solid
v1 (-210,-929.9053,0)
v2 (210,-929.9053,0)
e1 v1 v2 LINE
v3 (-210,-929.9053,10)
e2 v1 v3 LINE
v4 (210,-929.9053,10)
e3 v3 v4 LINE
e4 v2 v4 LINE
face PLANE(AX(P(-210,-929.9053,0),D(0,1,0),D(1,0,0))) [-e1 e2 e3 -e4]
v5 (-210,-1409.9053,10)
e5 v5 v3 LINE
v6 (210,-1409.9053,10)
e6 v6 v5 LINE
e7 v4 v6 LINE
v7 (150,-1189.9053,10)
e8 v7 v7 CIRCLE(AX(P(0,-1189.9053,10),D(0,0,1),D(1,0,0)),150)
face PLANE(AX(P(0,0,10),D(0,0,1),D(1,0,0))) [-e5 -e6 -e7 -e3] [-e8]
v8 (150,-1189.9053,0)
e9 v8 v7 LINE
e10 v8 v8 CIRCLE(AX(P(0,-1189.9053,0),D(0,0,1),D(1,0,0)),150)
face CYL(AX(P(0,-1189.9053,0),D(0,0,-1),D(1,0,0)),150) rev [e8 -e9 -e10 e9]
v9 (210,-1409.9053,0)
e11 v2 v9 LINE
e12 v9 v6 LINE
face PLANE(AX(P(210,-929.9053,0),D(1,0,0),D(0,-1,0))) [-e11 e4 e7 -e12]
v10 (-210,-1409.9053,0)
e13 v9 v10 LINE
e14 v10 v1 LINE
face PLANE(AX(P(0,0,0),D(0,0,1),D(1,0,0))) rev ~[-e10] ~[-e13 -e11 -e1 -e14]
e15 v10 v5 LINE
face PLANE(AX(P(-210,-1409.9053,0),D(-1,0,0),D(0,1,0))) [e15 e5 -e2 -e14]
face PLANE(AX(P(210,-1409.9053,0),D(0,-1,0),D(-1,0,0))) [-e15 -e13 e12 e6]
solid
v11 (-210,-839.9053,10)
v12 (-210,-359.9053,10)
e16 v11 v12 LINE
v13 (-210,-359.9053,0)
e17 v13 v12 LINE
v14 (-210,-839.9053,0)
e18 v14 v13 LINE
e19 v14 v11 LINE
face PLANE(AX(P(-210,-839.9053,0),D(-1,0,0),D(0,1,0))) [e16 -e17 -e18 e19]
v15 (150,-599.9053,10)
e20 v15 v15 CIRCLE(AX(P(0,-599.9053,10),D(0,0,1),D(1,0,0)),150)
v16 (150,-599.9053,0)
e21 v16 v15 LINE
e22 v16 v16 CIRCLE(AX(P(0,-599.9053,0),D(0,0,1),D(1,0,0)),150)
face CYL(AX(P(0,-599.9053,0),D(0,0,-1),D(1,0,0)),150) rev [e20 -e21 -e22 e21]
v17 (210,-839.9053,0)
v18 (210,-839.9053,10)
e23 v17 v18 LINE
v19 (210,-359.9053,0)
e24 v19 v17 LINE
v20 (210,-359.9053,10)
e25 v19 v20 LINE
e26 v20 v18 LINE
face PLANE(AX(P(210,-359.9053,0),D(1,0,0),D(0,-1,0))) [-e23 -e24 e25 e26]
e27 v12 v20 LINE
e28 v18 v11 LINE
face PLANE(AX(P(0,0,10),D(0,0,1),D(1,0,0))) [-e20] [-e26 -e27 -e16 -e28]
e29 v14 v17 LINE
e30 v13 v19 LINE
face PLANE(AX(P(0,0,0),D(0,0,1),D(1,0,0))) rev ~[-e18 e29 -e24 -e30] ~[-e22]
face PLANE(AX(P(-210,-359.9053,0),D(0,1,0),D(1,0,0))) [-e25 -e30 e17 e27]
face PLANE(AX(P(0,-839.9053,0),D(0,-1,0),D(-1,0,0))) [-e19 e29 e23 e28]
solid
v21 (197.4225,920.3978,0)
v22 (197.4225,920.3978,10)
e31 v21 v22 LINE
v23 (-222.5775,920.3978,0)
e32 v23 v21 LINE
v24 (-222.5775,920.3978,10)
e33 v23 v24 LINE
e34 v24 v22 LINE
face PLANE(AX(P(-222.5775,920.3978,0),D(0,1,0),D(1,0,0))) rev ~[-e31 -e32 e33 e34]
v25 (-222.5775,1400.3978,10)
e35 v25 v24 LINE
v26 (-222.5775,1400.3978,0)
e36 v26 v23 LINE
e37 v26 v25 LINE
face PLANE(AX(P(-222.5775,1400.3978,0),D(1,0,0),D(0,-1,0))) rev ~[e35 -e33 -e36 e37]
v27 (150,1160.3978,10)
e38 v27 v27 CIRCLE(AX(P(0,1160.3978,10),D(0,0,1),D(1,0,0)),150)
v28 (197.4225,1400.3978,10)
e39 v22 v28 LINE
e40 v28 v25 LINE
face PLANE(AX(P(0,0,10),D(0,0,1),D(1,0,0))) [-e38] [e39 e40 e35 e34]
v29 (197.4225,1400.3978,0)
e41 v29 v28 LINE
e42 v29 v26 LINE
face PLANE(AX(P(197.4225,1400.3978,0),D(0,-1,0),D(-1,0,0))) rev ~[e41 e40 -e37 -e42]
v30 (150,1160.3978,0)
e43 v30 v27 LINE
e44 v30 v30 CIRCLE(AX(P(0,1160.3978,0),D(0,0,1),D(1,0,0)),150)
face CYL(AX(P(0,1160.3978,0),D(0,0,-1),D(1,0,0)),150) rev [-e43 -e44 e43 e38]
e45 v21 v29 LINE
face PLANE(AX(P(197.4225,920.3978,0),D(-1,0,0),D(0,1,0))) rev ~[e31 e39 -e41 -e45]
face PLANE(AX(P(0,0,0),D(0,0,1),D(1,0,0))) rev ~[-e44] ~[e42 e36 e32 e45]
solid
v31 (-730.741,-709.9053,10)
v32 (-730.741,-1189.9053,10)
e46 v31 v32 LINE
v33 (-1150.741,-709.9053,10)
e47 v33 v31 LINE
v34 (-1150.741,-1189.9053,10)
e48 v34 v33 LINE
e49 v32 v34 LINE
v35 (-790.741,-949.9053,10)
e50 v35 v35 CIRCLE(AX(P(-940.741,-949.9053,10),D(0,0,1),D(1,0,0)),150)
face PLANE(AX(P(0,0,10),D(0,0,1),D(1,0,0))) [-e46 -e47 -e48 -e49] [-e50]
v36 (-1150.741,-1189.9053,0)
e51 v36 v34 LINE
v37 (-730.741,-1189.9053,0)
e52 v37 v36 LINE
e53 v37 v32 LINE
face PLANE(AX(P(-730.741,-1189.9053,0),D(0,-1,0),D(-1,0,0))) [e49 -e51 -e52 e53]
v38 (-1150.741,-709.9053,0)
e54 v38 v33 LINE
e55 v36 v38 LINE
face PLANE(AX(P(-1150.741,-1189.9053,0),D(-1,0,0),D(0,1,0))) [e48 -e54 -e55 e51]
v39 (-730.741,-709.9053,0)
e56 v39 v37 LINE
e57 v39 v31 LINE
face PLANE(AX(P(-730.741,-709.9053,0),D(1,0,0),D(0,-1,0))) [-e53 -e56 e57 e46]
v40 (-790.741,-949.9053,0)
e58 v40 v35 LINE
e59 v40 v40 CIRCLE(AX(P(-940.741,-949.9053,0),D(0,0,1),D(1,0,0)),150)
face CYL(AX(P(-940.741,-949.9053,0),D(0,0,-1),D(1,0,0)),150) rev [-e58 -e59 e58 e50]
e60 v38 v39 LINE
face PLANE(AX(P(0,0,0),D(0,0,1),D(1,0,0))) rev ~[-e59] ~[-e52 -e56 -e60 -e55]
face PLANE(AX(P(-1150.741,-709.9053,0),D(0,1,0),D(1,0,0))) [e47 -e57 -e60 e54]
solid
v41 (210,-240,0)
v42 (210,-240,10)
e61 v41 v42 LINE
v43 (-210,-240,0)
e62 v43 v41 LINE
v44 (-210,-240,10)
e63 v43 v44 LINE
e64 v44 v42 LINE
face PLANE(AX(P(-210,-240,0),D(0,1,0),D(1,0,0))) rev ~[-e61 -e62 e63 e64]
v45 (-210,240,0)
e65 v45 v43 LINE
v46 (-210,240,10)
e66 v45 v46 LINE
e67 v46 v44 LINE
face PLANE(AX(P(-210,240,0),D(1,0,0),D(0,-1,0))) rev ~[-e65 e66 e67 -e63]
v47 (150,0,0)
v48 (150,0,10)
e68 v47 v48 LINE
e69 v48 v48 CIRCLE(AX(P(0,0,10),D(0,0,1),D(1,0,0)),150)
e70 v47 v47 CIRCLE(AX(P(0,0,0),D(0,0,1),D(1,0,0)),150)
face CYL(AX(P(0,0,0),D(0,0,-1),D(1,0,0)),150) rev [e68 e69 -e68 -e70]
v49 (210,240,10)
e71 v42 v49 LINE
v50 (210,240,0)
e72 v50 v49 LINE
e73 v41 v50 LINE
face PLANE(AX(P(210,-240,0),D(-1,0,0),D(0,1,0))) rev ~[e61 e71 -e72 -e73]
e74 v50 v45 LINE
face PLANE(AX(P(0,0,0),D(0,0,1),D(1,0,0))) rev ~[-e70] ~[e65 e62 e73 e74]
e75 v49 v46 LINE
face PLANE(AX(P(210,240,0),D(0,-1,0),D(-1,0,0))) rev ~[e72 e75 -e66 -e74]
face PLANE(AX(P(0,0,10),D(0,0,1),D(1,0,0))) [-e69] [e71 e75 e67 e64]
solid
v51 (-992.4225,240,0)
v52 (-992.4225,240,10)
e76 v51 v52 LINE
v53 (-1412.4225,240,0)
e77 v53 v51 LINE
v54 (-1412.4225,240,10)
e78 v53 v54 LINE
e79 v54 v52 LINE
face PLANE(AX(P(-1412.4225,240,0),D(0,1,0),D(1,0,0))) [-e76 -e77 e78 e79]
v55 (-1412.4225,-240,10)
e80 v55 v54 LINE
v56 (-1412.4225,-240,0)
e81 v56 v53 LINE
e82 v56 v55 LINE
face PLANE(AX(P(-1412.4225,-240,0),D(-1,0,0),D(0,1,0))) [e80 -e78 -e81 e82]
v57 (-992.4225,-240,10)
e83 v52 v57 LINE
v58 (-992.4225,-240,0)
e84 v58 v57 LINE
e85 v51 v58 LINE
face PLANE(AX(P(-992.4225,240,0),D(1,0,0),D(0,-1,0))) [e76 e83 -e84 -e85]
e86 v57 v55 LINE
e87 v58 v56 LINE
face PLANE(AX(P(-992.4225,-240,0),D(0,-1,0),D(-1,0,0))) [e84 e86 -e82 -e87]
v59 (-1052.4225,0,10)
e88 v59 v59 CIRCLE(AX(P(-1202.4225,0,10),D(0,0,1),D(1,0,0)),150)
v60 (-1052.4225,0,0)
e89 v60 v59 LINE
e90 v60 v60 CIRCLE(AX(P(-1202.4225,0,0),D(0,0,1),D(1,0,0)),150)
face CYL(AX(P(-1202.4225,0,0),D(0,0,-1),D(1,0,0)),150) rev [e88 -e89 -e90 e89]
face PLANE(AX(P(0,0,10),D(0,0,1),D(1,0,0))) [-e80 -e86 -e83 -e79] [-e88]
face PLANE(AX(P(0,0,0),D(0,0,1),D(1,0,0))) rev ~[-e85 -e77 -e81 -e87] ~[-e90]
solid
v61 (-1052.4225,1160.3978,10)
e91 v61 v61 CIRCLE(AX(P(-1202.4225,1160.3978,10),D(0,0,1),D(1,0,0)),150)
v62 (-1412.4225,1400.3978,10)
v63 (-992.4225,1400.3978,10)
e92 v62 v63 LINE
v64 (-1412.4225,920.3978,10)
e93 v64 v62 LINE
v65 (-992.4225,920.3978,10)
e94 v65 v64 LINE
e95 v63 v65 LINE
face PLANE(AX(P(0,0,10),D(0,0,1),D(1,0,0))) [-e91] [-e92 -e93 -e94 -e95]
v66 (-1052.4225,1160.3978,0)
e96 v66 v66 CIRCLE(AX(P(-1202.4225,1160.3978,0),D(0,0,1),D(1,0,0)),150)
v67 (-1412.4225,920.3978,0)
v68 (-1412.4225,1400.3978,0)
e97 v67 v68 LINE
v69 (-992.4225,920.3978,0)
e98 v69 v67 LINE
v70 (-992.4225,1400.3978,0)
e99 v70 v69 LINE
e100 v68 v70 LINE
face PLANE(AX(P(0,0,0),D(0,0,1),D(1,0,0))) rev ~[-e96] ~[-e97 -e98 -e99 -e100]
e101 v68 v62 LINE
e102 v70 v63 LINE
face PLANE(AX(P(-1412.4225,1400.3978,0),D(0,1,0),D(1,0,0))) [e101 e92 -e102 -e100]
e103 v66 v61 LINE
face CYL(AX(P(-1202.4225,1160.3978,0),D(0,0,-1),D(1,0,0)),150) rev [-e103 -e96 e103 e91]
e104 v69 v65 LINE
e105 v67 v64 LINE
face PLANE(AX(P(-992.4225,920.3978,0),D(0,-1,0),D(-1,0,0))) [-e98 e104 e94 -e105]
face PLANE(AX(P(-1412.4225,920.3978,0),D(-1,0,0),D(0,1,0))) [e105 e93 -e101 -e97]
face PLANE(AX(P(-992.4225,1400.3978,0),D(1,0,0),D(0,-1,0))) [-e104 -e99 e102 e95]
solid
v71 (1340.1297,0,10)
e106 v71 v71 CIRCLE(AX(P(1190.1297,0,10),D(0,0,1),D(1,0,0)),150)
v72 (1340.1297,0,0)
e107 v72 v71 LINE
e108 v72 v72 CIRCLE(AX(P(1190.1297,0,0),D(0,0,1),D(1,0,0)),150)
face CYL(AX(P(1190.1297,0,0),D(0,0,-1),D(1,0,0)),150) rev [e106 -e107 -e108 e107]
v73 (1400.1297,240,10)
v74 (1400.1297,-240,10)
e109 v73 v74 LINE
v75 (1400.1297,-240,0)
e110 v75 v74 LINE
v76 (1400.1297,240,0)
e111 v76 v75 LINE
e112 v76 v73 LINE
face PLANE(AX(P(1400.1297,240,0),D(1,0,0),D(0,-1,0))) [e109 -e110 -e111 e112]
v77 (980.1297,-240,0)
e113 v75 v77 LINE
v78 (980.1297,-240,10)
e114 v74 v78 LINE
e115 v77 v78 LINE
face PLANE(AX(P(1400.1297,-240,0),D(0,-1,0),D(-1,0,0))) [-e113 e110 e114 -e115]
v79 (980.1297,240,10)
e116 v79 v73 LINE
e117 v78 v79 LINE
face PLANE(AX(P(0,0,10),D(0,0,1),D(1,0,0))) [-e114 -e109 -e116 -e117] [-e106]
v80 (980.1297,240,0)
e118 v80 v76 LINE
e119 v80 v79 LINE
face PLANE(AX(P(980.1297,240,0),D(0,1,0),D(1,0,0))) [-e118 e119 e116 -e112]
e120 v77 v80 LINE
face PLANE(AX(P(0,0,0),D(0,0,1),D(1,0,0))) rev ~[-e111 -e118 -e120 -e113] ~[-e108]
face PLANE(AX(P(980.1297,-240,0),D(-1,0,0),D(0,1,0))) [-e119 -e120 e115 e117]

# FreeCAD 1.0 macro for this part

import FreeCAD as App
import Part
import Sketcher
Q = App.Units.Quantity

doc = App.newDocument("Part")
params = doc.addObject("Spreadsheet::Sheet", "Params")
for row, (alias, value) in enumerate([
    ("sketch1_diameter", "300 mm"),
    ("sketch1_width", "420 mm"),
    ("sketch1_height", "480 mm"),
    ("pad1_length", "10 mm"),
], start=1):
    params.set(f"A{row}", alias)
    params.set(f"B{row}", "=" + value)
    params.setAlias(f"B{row}", alias)

body = doc.addObject("PartDesign::Body", "Body")
body.AllowCompound = True

# Sketch on XY plane
sketch1 = doc.addObject("Sketcher::SketchObject", "Sketch")
body.addObject(sketch1)
sketch1.AttachmentSupport = (doc.XY_Plane, [""])
sketch1.MapMode = "FlatFace"
sketch1.addGeometry(Part.LineSegment(App.Vector(-992, 1400, 0), App.Vector(-1412, 1400, 0)), False)
sketch1.addGeometry(Part.LineSegment(App.Vector(-1412, 1400, 0), App.Vector(-1412, 920, 0)), False)
sketch1.addGeometry(Part.LineSegment(App.Vector(-1412, 920, 0), App.Vector(-992, 920, 0)), False)
sketch1.addGeometry(Part.LineSegment(App.Vector(-992, 920, 0), App.Vector(-992, 1400, 0)), False)
sketch1.addGeometry(Part.Circle(App.Vector(-1202, 1160, 0), App.Vector(0, 0, 1), 150), False)
sketch1.addGeometry(Part.LineSegment(App.Vector(197, 920, 0), App.Vector(197, 1400, 0)), False)
sketch1.addGeometry(Part.LineSegment(App.Vector(197, 1400, 0), App.Vector(-223, 1400, 0)), False)
sketch1.addGeometry(Part.LineSegment(App.Vector(-223, 1400, 0), App.Vector(-223, 920, 0)), False)
sketch1.addGeometry(Part.LineSegment(App.Vector(-223, 920, 0), App.Vector(197, 920, 0)), False)
sketch1.addGeometry(Part.Circle(App.Vector(0, 1160, 0), App.Vector(0, 0, 1), 150), False)
sketch1.addGeometry(Part.LineSegment(App.Vector(210, -240, 0), App.Vector(210, 240, 0)), False)
sketch1.addGeometry(Part.LineSegment(App.Vector(210, 240, 0), App.Vector(-210, 240, 0)), False)
sketch1.addGeometry(Part.LineSegment(App.Vector(-210, 240, 0), App.Vector(-210, -240, 0)), False)
sketch1.addGeometry(Part.LineSegment(App.Vector(-210, -240, 0), App.Vector(210, -240, 0)), False)
sketch1.addGeometry(Part.Circle(App.Vector(0, 0, 0), App.Vector(0, 0, 1), 150), False)
sketch1.addGeometry(Part.LineSegment(App.Vector(-992, 240, 0), App.Vector(-1412, 240, 0)), False)
sketch1.addGeometry(Part.LineSegment(App.Vector(-1412, 240, 0), App.Vector(-1412, -240, 0)), False)
sketch1.addGeometry(Part.LineSegment(App.Vector(-1412, -240, 0), App.Vector(-992, -240, 0)), False)
sketch1.addGeometry(Part.LineSegment(App.Vector(-992, -240, 0), App.Vector(-992, 240, 0)), False)
sketch1.addGeometry(Part.Circle(App.Vector(-1202, 0, 0), App.Vector(0, 0, 1), 150), False)
sketch1.addGeometry(Part.LineSegment(App.Vector(980, -240, 0), App.Vector(1400, -240, 0)), False)
sketch1.addGeometry(Part.LineSegment(App.Vector(1400, -240, 0), App.Vector(1400, 240, 0)), False)
sketch1.addGeometry(Part.LineSegment(App.Vector(1400, 240, 0), App.Vector(980, 240, 0)), False)
sketch1.addGeometry(Part.LineSegment(App.Vector(980, 240, 0), App.Vector(980, -240, 0)), False)
sketch1.addGeometry(Part.Circle(App.Vector(1190, 0, 0), App.Vector(0, 0, 1), 150), False)
sketch1.addGeometry(Part.LineSegment(App.Vector(210, -930, 0), App.Vector(-210, -930, 0)), False)
sketch1.addGeometry(Part.LineSegment(App.Vector(-210, -930, 0), App.Vector(-210, -1410, 0)), False)
sketch1.addGeometry(Part.LineSegment(App.Vector(-210, -1410, 0), App.Vector(210, -1410, 0)), False)
sketch1.addGeometry(Part.LineSegment(App.Vector(210, -1410, 0), App.Vector(210, -930, 0)), False)
sketch1.addGeometry(Part.Circle(App.Vector(0, -1190, 0), App.Vector(0, 0, 1), 150), False)
sketch1.addGeometry(Part.LineSegment(App.Vector(-210, -840, 0), App.Vector(210, -840, 0)), False)
sketch1.addGeometry(Part.LineSegment(App.Vector(210, -840, 0), App.Vector(210, -360, 0)), False)
sketch1.addGeometry(Part.LineSegment(App.Vector(210, -360, 0), App.Vector(-210, -360, 0)), False)
sketch1.addGeometry(Part.LineSegment(App.Vector(-210, -360, 0), App.Vector(-210, -840, 0)), False)
sketch1.addGeometry(Part.Circle(App.Vector(0, -600, 0), App.Vector(0, 0, 1), 150), False)
sketch1.addGeometry(Part.LineSegment(App.Vector(-1151, -1190, 0), App.Vector(-731, -1190, 0)), False)
sketch1.addGeometry(Part.LineSegment(App.Vector(-731, -1190, 0), App.Vector(-731, -710, 0)), False)
sketch1.addGeometry(Part.LineSegment(App.Vector(-731, -710, 0), App.Vector(-1151, -710, 0)), False)
sketch1.addGeometry(Part.LineSegment(App.Vector(-1151, -710, 0), App.Vector(-1151, -1190, 0)), False)
sketch1.addGeometry(Part.Circle(App.Vector(-941, -950, 0), App.Vector(0, 0, 1), 150), False)
sketch1.addConstraint(Sketcher.Constraint("Coincident", 0, 2, 1, 1))
sketch1.addConstraint(Sketcher.Constraint("Coincident", 1, 2, 2, 1))
sketch1.addConstraint(Sketcher.Constraint("Coincident", 2, 2, 3, 1))
sketch1.addConstraint(Sketcher.Constraint("Coincident", 3, 2, 0, 1))
sketch1.addConstraint(Sketcher.Constraint("Coincident", 5, 2, 6, 1))
sketch1.addConstraint(Sketcher.Constraint("Coincident", 6, 2, 7, 1))
sketch1.addConstraint(Sketcher.Constraint("Coincident", 7, 2, 8, 1))
sketch1.addConstraint(Sketcher.Constraint("Coincident", 8, 2, 5, 1))
sketch1.addConstraint(Sketcher.Constraint("Coincident", 10, 2, 11, 1))
sketch1.addConstraint(Sketcher.Constraint("Coincident", 11, 2, 12, 1))
sketch1.addConstraint(Sketcher.Constraint("Coincident", 12, 2, 13, 1))
sketch1.addConstraint(Sketcher.Constraint("Coincident", 13, 2, 10, 1))
sketch1.addConstraint(Sketcher.Constraint("Coincident", 15, 2, 16, 1))
sketch1.addConstraint(Sketcher.Constraint("Coincident", 16, 2, 17, 1))
sketch1.addConstraint(Sketcher.Constraint("Coincident", 17, 2, 18, 1))
sketch1.addConstraint(Sketcher.Constraint("Coincident", 18, 2, 15, 1))
sketch1.addConstraint(Sketcher.Constraint("Coincident", 20, 2, 21, 1))
sketch1.addConstraint(Sketcher.Constraint("Coincident", 21, 2, 22, 1))
sketch1.addConstraint(Sketcher.Constraint("Coincident", 22, 2, 23, 1))
sketch1.addConstraint(Sketcher.Constraint("Coincident", 23, 2, 20, 1))
sketch1.addConstraint(Sketcher.Constraint("Coincident", 25, 2, 26, 1))
sketch1.addConstraint(Sketcher.Constraint("Coincident", 26, 2, 27, 1))
sketch1.addConstraint(Sketcher.Constraint("Coincident", 27, 2, 28, 1))
sketch1.addConstraint(Sketcher.Constraint("Coincident", 28, 2, 25, 1))
sketch1.addConstraint(Sketcher.Constraint("Coincident", 30, 2, 31, 1))
sketch1.addConstraint(Sketcher.Constraint("Coincident", 31, 2, 32, 1))
sketch1.addConstraint(Sketcher.Constraint("Coincident", 32, 2, 33, 1))
sketch1.addConstraint(Sketcher.Constraint("Coincident", 33, 2, 30, 1))
sketch1.addConstraint(Sketcher.Constraint("Coincident", 35, 2, 36, 1))
sketch1.addConstraint(Sketcher.Constraint("Coincident", 36, 2, 37, 1))
sketch1.addConstraint(Sketcher.Constraint("Coincident", 37, 2, 38, 1))
sketch1.addConstraint(Sketcher.Constraint("Coincident", 38, 2, 35, 1))
sketch1.addConstraint(Sketcher.Constraint("Horizontal", 0))
sketch1.addConstraint(Sketcher.Constraint("Vertical", 1))
sketch1.addConstraint(Sketcher.Constraint("Horizontal", 2))
sketch1.addConstraint(Sketcher.Constraint("Vertical", 3))
sketch1.addConstraint(Sketcher.Constraint("Vertical", 5))
sketch1.addConstraint(Sketcher.Constraint("Horizontal", 6))
sketch1.addConstraint(Sketcher.Constraint("Vertical", 7))
sketch1.addConstraint(Sketcher.Constraint("Horizontal", 8))
sketch1.addConstraint(Sketcher.Constraint("Vertical", 10))
sketch1.addConstraint(Sketcher.Constraint("Horizontal", 11))
sketch1.addConstraint(Sketcher.Constraint("Vertical", 12))
sketch1.addConstraint(Sketcher.Constraint("Horizontal", 13))
sketch1.addConstraint(Sketcher.Constraint("Horizontal", 15))
sketch1.addConstraint(Sketcher.Constraint("Vertical", 16))
sketch1.addConstraint(Sketcher.Constraint("Horizontal", 17))
sketch1.addConstraint(Sketcher.Constraint("Vertical", 18))
sketch1.addConstraint(Sketcher.Constraint("Horizontal", 20))
sketch1.addConstraint(Sketcher.Constraint("Vertical", 21))
sketch1.addConstraint(Sketcher.Constraint("Horizontal", 22))
sketch1.addConstraint(Sketcher.Constraint("Vertical", 23))
sketch1.addConstraint(Sketcher.Constraint("Horizontal", 25))
sketch1.addConstraint(Sketcher.Constraint("Vertical", 26))
sketch1.addConstraint(Sketcher.Constraint("Horizontal", 27))
sketch1.addConstraint(Sketcher.Constraint("Vertical", 28))
sketch1.addConstraint(Sketcher.Constraint("Horizontal", 30))
sketch1.addConstraint(Sketcher.Constraint("Vertical", 31))
sketch1.addConstraint(Sketcher.Constraint("Horizontal", 32))
sketch1.addConstraint(Sketcher.Constraint("Vertical", 33))
sketch1.addConstraint(Sketcher.Constraint("Horizontal", 35))
sketch1.addConstraint(Sketcher.Constraint("Vertical", 36))
sketch1.addConstraint(Sketcher.Constraint("Horizontal", 37))
sketch1.addConstraint(Sketcher.Constraint("Vertical", 38))
sketch1.addConstraint(Sketcher.Constraint("Coincident", 14, 3, -1, 1))
sketch1.addConstraint(Sketcher.Constraint("Equal", 4, 9))
sketch1.addConstraint(Sketcher.Constraint("Equal", 9, 14))
sketch1.addConstraint(Sketcher.Constraint("Equal", 14, 19))
sketch1.addConstraint(Sketcher.Constraint("Equal", 19, 24))
sketch1.addConstraint(Sketcher.Constraint("Equal", 24, 29))
sketch1.addConstraint(Sketcher.Constraint("Equal", 29, 34))
sketch1.addConstraint(Sketcher.Constraint("Equal", 34, 39))
sketch1.addConstraint(Sketcher.Constraint("Symmetric", 10, 2, 12, 2, -1, 1))
sketch1.addConstraint(Sketcher.Constraint("PointOnObject", 9, 3, -2))
sketch1.addConstraint(Sketcher.Constraint("PointOnObject", 19, 3, -1))
sketch1.addConstraint(Sketcher.Constraint("PointOnObject", 24, 3, -1))
sketch1.addConstraint(Sketcher.Constraint("PointOnObject", 29, 3, -2))
sketch1.addConstraint(Sketcher.Constraint("PointOnObject", 34, 3, -2))
sketch1.addConstraint(Sketcher.Constraint("Horizontal", 4, 3, 9, 3))
sketch1.addConstraint(Sketcher.Constraint("Horizontal", 3, 2, 5, 2))
sketch1.addConstraint(Sketcher.Constraint("Horizontal", 2, 2, 7, 2))
sketch1.addConstraint(Sketcher.Constraint("Horizontal", 11, 2, 15, 2))
sketch1.addConstraint(Sketcher.Constraint("Horizontal", 13, 2, 16, 2))
sketch1.addConstraint(Sketcher.Constraint("Horizontal", 17, 2, 20, 2))
sketch1.addConstraint(Sketcher.Constraint("Horizontal", 18, 2, 21, 2))
sketch1.addConstraint(Sketcher.Constraint("Horizontal", 29, 3, 35, 2))
sketch1.addConstraint(Sketcher.Constraint("Vertical", 4, 3, 19, 3))
sketch1.addConstraint(Sketcher.Constraint("Vertical", 1, 2, 15, 2))
sketch1.addConstraint(Sketcher.Constraint("Vertical", 3, 2, 17, 2))
sketch1.addConstraint(Sketcher.Constraint("Vertical", 12, 2, 25, 2))
sketch1.addConstraint(Sketcher.Constraint("Vertical", 13, 2, 27, 2))
sketch1.addConstraint(Sketcher.Constraint("Vertical", 28, 2, 30, 2))
sketch1.addConstraint(Sketcher.Constraint("Vertical", 26, 2, 32, 2))
sketch1.addConstraint(Sketcher.Constraint("Equal", 2, 6))
sketch1.addConstraint(Sketcher.Constraint("Equal", 8, 11))
sketch1.addConstraint(Sketcher.Constraint("Equal", 17, 20))
sketch1.addConstraint(Sketcher.Constraint("Equal", 32, 35))
sketch1.addConstraint(Sketcher.Constraint("Equal", 7, 10))
sketch1.addConstraint(Sketcher.Constraint("Equal", 23, 26))
sketch1.addConstraint(Sketcher.Constraint("Equal", 28, 31))
sketch1.addConstraint(Sketcher.Constraint("Equal", 33, 36))
sketch1.addConstraint(Sketcher.Constraint("Diameter", 4, Q("300 mm")))
sketch1.addConstraint(Sketcher.Constraint("DistanceX", 0, 2, 0, 1, Q("420 mm")))
sketch1.addConstraint(Sketcher.Constraint("DistanceY", 1, 2, 1, 1, Q("480 mm")))
sketch1.addConstraint(Sketcher.Constraint("DistanceY", 29, 3, 34, 3, Q("590 mm")))
sketch1.addConstraint(Sketcher.Constraint("DistanceY", 29, 3, 39, 3, Q("240 mm")))
sketch1.addConstraint(Sketcher.Constraint("DistanceX", 0, 2, 4, 3, Q("210 mm")))
sketch1.addConstraint(Sketcher.Constraint("DistanceY", 4, 3, 0, 2, Q("240 mm")))
sketch1.addConstraint(Sketcher.Constraint("DistanceX", 24, 3, 20, 2, Q("210 mm")))
sketch1.addConstraint(Sketcher.Constraint("DistanceY", 29, 3, 25, 2, Q("260 mm")))
sketch1.addConstraint(Sketcher.Constraint("DistanceY", 28, 2, 30, 2, Q("90 mm")))
sketch1.addConstraint(Sketcher.Constraint("DistanceX", 39, 3, 35, 2, Q("210 mm")))
sketch1.addConstraint(Sketcher.Constraint("DistanceX", 39, 3, -1, 1, Q("940.741 mm")))
sketch1.addConstraint(Sketcher.Constraint("DistanceY", 29, 3, 9, 3, Q("2350.303 mm")))
sketch1.addConstraint(Sketcher.Constraint("DistanceX", 3, 2, 5, 2, Q("1189.845 mm")))
sketch1.addConstraint(Sketcher.Constraint("DistanceX", 4, 3, -1, 1, Q("1202.4225 mm")))
sketch1.addConstraint(Sketcher.Constraint("DistanceY", -1, 1, 4, 3, Q("1160.3978 mm")))
sketch1.addConstraint(Sketcher.Constraint("DistanceX", -1, 1, 24, 3, Q("1190.1297 mm")))
sketch1.setExpression("Constraints[101]", "Params.sketch1_diameter")
sketch1.setExpression("Constraints[102]", "Params.sketch1_width")
sketch1.setExpression("Constraints[103]", "Params.sketch1_height")
pad1 = doc.addObject("PartDesign::Pad", "Pad")
body.addObject(pad1)
pad1.Profile = sketch1
pad1.setExpression("Length", "Params.pad1_length")

doc.recompute()
